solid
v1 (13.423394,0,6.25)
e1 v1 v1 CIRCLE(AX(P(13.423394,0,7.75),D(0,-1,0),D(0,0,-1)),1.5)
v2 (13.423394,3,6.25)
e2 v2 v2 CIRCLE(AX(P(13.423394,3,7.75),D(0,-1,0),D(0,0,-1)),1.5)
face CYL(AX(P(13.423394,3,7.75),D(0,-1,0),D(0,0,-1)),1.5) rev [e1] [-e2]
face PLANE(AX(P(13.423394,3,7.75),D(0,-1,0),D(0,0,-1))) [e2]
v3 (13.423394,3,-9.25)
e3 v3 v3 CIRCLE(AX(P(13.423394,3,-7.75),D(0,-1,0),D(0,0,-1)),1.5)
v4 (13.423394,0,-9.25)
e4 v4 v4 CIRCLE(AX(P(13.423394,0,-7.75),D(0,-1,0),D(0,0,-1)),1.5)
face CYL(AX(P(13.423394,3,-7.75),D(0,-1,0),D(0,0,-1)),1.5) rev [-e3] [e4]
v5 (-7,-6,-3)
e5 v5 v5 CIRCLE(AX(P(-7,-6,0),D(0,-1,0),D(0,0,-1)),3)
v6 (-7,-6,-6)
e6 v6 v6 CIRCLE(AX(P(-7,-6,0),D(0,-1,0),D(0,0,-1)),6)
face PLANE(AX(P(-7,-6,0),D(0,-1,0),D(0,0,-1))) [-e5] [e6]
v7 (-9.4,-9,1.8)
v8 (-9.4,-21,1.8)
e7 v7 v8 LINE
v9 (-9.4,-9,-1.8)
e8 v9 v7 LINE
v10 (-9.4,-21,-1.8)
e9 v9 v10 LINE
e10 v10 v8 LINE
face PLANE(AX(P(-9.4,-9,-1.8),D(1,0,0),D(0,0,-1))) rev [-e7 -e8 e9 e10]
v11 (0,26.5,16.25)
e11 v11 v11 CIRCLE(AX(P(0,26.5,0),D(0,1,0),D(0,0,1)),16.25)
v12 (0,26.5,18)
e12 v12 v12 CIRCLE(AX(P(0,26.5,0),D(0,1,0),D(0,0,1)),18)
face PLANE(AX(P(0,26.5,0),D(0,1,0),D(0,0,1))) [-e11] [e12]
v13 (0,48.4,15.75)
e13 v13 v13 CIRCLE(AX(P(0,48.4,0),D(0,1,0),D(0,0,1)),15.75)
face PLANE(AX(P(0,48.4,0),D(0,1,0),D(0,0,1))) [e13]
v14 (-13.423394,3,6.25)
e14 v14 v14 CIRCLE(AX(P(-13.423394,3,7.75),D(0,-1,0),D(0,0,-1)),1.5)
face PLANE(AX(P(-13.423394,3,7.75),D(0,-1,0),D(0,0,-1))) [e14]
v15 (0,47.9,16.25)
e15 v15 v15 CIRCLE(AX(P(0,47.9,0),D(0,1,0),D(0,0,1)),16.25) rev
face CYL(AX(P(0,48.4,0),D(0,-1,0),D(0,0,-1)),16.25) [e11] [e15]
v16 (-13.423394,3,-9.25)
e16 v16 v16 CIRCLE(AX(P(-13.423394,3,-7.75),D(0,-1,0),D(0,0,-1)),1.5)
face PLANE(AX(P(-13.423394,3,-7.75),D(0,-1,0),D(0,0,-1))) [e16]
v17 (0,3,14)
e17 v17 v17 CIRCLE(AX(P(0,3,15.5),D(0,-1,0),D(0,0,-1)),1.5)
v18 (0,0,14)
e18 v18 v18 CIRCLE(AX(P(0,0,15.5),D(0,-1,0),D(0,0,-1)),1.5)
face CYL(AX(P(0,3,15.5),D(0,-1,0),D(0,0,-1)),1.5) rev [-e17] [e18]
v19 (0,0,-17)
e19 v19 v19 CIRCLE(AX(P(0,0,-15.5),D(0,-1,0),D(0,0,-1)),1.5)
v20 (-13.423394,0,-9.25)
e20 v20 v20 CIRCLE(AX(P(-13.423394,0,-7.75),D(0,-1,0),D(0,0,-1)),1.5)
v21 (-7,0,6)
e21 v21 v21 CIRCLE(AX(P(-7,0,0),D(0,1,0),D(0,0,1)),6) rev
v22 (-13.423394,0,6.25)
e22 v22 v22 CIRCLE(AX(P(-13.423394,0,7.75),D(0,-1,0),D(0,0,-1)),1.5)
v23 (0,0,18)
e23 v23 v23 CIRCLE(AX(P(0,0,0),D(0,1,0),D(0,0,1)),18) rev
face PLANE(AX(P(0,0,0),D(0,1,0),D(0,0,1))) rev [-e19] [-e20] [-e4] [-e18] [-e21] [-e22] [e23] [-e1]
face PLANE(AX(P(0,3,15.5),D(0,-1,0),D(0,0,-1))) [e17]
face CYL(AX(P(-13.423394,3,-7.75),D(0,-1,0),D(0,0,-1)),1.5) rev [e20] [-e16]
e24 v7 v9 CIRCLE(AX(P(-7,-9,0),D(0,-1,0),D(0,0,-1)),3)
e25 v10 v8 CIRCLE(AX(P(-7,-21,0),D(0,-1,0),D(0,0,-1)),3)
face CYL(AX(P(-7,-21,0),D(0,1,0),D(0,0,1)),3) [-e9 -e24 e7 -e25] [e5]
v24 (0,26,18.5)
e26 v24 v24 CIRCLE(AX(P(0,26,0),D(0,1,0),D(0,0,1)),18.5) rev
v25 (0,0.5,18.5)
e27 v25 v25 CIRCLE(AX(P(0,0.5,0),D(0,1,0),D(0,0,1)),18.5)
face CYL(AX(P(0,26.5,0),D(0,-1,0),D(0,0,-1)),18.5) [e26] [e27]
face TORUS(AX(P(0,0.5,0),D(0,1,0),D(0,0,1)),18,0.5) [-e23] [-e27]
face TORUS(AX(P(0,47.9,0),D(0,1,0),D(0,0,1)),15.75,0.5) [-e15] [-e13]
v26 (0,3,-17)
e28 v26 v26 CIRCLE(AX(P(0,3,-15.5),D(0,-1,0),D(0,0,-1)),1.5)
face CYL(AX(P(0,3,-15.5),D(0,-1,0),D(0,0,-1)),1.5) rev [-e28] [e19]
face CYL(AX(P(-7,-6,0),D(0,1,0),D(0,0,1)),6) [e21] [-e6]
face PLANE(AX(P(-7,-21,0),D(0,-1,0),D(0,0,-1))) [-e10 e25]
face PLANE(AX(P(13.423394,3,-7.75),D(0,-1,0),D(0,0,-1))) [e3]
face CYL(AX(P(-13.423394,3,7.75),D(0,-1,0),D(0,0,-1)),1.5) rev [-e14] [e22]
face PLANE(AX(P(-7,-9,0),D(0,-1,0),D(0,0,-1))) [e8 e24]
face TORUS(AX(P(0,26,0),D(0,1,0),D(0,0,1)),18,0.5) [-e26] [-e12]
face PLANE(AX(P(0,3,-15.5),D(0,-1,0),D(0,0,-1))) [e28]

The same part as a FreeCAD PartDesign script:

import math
import FreeCAD as App
import Part
import Sketcher

V = App.Vector
Q = App.Units.Quantity


def edges_at(feature, points):
    """Names of the edges that pass closest to the given points."""
    edges = feature.Shape.Edges
    near = lambda p: min(range(len(edges)), key=lambda i: edges[i].distToShape(Part.Vertex(*p))[0])
    return sorted({f"Edge{near(p) + 1}" for p in points})

doc = App.newDocument("Part")
body = doc.addObject("PartDesign::Body", "Body")

sketch1 = body.newObject("Sketcher::SketchObject", "Sketch")
sketch1.AttachmentSupport = (doc.getObject("XZ_Plane"), [""])
sketch1.MapMode = "FlatFace"
sketch1.addGeometry(Part.Circle(V(0, 0, 0), V(0, 0, 1), 18), False)
sketch1.addConstraint(Sketcher.Constraint("Coincident", 0, 3, -1, 1))
sketch1.addConstraint(Sketcher.Constraint("Diameter", 0, Q("37 mm")))
pad1 = body.newObject("PartDesign::Pad", "Pad")
pad1.Profile = sketch1
pad1.Length = 26.5
pad1.Reversed = True

sketch2 = body.newObject("Sketcher::SketchObject", "Sketch001")
sketch2.AttachmentSupport = (doc.getObject("XZ_Plane"), [""])
sketch2.MapMode = "FlatFace"
sketch2.AttachmentOffset = App.Placement(V(0, 0, -26.5), App.Rotation())
sketch2.addGeometry(Part.Circle(V(0, 0, 0), V(0, 0, 1), 16), False)
sketch2.addConstraint(Sketcher.Constraint("Coincident", 0, 3, -1, 1))
sketch2.addConstraint(Sketcher.Constraint("Diameter", 0, Q("32.5 mm")))
pad2 = body.newObject("PartDesign::Pad", "Pad001")
pad2.Profile = sketch2
pad2.Length = 21.9
pad2.Reversed = True

sketch3 = body.newObject("Sketcher::SketchObject", "Sketch002")
sketch3.AttachmentSupport = (doc.getObject("XZ_Plane"), [""])
sketch3.MapMode = "FlatFace"
sketch3.addGeometry(Part.Circle(V(-7, 0, 0), V(0, 0, 1), 6), False)
sketch3.addConstraint(Sketcher.Constraint("PointOnObject", 0, 3, -1))
sketch3.addConstraint(Sketcher.Constraint("Diameter", 0, Q("12 mm")))
sketch3.addConstraint(Sketcher.Constraint("DistanceX", 0, 3, -1, 1, Q("7 mm")))
pad3 = body.newObject("PartDesign::Pad", "Pad002")
pad3.Profile = sketch3
pad3.Length = 6

sketch4 = body.newObject("Sketcher::SketchObject", "Sketch003")
sketch4.AttachmentSupport = (doc.getObject("XZ_Plane"), [""])
sketch4.MapMode = "FlatFace"
sketch4.AttachmentOffset = App.Placement(V(0, 0, 6), App.Rotation())
sketch4.addGeometry(Part.Circle(V(-7, 0, 0), V(0, 0, 1), 3), False)
sketch4.addConstraint(Sketcher.Constraint("PointOnObject", 0, 3, -1))
sketch4.addConstraint(Sketcher.Constraint("Diameter", 0, Q("6 mm")))
sketch4.addConstraint(Sketcher.Constraint("DistanceX", 0, 3, -1, 1, Q("7 mm")))
pad4 = body.newObject("PartDesign::Pad", "Pad003")
pad4.Profile = sketch4
pad4.Length = 15

sketch5 = body.newObject("Sketcher::SketchObject", "Sketch004")
sketch5.AttachmentSupport = (doc.getObject("XZ_Plane"), [""])
sketch5.MapMode = "FlatFace"
sketch5.AttachmentOffset = App.Placement(V(0, 0, 9), App.Rotation())
sketch5.addGeometry(Part.LineSegment(V(-9.4, -1.8, 0), V(-9.4, 1.8, 0)), False)
sketch5.addGeometry(Part.ArcOfCircle(Part.Circle(V(-7, 0, 0), V(0, 0, 1), 3), math.radians(143), math.radians(217)), False)
sketch5.addConstraint(Sketcher.Constraint("Coincident", 0, 1, 1, 2))
sketch5.addConstraint(Sketcher.Constraint("Coincident", 1, 1, 0, 2))
sketch5.addConstraint(Sketcher.Constraint("Vertical", 0))
sketch5.addConstraint(Sketcher.Constraint("PointOnObject", 1, 3, -1))
sketch5.addConstraint(Sketcher.Constraint("Radius", 1, Q("3 mm")))
sketch5.addConstraint(Sketcher.Constraint("DistanceY", 0, 1, 0, 2, Q("3.6 mm")))
sketch5.addConstraint(Sketcher.Constraint("DistanceX", 1, 3, -1, 1, Q("7 mm")))
pocket1 = body.newObject("PartDesign::Pocket", "Pocket")
pocket1.Profile = sketch5
pocket1.Length = 12
pocket1.Reversed = True
doc.recompute()

fillet = body.newObject("PartDesign::Fillet", "Fillet")
fillet.Base = (pocket1, edges_at(pocket1, [(0, 0, -18.5), (0, 26.5, -18.5), (0, 48.4, -16.25)]))
fillet.Radius = 0.5

sketch6 = body.newObject("Sketcher::SketchObject", "Sketch005")
sketch6.AttachmentSupport = (doc.getObject("XZ_Plane"), [""])
sketch6.MapMode = "FlatFace"
sketch6.addGeometry(Part.Circle(V(0, -15.5, 0), V(0, 0, 1), 1.5), False)
sketch6.addGeometry(Part.Circle(V(-13.4, -7.8, 0), V(0, 0, 1), 1.5), False)
sketch6.addGeometry(Part.Circle(V(-13.4, 7.8, 0), V(0, 0, 1), 1.5), False)
sketch6.addGeometry(Part.Circle(V(0, 15.5, 0), V(0, 0, 1), 1.5), False)
sketch6.addGeometry(Part.Circle(V(13.4, 7.8, 0), V(0, 0, 1), 1.5), False)
sketch6.addGeometry(Part.Circle(V(13.4, -7.8, 0), V(0, 0, 1), 1.5), False)
sketch6.addConstraint(Sketcher.Constraint("Equal", 0, 1))
sketch6.addConstraint(Sketcher.Constraint("Equal", 1, 2))
sketch6.addConstraint(Sketcher.Constraint("Equal", 2, 3))
sketch6.addConstraint(Sketcher.Constraint("Equal", 3, 4))
sketch6.addConstraint(Sketcher.Constraint("Equal", 4, 5))
sketch6.addConstraint(Sketcher.Constraint("Symmetric", 0, 3, 3, 3, -1, 1))
sketch6.addConstraint(Sketcher.Constraint("Symmetric", 1, 3, 4, 3, -1, 1))
sketch6.addConstraint(Sketcher.Constraint("Symmetric", 2, 3, 5, 3, -1, 1))
sketch6.addConstraint(Sketcher.Constraint("Symmetric", 2, 3, 4, 3, -2))
sketch6.addConstraint(Sketcher.Constraint("PointOnObject", 0, 3, -2))
sketch6.addConstraint(Sketcher.Constraint("Diameter", 0, Q("3 mm")))
sketch6.addConstraint(Sketcher.Constraint("DistanceY", 0, 3, 3, 3, Q("31 mm")))
sketch6.addConstraint(Sketcher.Constraint("DistanceY", 1, 3, 2, 3, Q("15.5 mm")))
sketch6.addConstraint(Sketcher.Constraint("DistanceX", 1, 3, -1, 1, Q("13.423394 mm")))
pocket2 = body.newObject("PartDesign::Pocket", "Pocket001")
pocket2.Profile = sketch6
pocket2.Length = 3

doc.recompute()
